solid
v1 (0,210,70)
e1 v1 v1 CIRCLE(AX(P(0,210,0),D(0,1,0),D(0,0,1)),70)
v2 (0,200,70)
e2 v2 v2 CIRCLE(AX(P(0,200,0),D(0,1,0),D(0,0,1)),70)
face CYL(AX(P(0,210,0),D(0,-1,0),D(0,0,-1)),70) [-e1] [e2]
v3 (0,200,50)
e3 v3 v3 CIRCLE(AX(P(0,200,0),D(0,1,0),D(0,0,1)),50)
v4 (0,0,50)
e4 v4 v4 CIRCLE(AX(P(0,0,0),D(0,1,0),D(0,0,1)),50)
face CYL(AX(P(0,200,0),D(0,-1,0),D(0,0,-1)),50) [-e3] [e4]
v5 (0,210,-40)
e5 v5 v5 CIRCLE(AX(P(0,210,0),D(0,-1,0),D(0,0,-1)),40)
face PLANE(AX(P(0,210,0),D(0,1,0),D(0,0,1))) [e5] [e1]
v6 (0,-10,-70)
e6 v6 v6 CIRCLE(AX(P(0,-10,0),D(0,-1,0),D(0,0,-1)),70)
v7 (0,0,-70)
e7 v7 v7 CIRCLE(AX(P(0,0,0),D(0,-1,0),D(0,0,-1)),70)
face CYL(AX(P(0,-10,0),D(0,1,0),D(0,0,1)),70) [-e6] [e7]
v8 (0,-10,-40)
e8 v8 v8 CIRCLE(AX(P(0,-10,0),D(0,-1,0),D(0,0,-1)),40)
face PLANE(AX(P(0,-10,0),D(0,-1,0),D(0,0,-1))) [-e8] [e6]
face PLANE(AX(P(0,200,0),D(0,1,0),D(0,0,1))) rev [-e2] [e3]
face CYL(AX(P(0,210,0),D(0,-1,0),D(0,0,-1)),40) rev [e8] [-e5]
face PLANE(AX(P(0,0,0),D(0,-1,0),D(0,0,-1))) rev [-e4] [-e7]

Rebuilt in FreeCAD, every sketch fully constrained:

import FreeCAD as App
import Part
import Sketcher

V = App.Vector

doc = App.newDocument("Part")
params = doc.addObject("Spreadsheet::Sheet", "Params")
for row, (alias, value) in enumerate([
    ("sketch1_diameter", "100 mm"),
    ("pad1_length", "200 mm"),
    ("sketch2_diameter", "140 mm"),
    ("pad2_length", "10 mm"),
    ("sketch3_diameter", "140 mm"),
    ("pad3_length", "10 mm"),
    ("sketch4_diameter", "80 mm"),
    ("pocket1_length", "220 mm"),
], start=1):
    params.set(f"A{row}", alias)
    params.set(f"B{row}", "=" + value)
    params.setAlias(f"B{row}", alias)

body = doc.addObject("PartDesign::Body", "Body")

# Sketch on XZ plane
sketch1 = doc.addObject("Sketcher::SketchObject", "Sketch")
body.addObject(sketch1)
sketch1.AttachmentSupport = (doc.XZ_Plane, [""])
sketch1.MapMode = "FlatFace"
sketch1.addGeometry(Part.Circle(V(0, 0, 0), V(0, 0, 1), 50), False)
sketch1.addConstraint([
    Sketcher.Constraint("Coincident", 0, 3, -1, 1),
    Sketcher.Constraint("Diameter", 0, 100.0),
])
sketch1.setExpression("Constraints[1]", "Params.sketch1_diameter")
pad1 = doc.addObject("PartDesign::Pad", "Pad")
body.addObject(pad1)
pad1.Profile = sketch1
pad1.setExpression("Length", "Params.pad1_length")
pad1.Reversed = True

# Sketch on XZ plane
sketch2 = doc.addObject("Sketcher::SketchObject", "Sketch001")
body.addObject(sketch2)
sketch2.AttachmentSupport = (doc.XZ_Plane, [""])
sketch2.MapMode = "FlatFace"
sketch2.AttachmentOffset = App.Placement(V(0, 0, -200), App.Rotation())
sketch2.addGeometry(Part.Circle(V(0, 0, 0), V(0, 0, 1), 70), False)
sketch2.addConstraint([
    Sketcher.Constraint("Coincident", 0, 3, -1, 1),
    Sketcher.Constraint("Diameter", 0, 140.0),
])
sketch2.setExpression("Constraints[1]", "Params.sketch2_diameter")
pad2 = doc.addObject("PartDesign::Pad", "Pad001")
body.addObject(pad2)
pad2.Profile = sketch2
pad2.setExpression("Length", "Params.pad2_length")
pad2.Reversed = True

# Sketch on XZ plane
sketch3 = doc.addObject("Sketcher::SketchObject", "Sketch002")
body.addObject(sketch3)
sketch3.AttachmentSupport = (doc.XZ_Plane, [""])
sketch3.MapMode = "FlatFace"
sketch3.AttachmentOffset = App.Placement(V(0, 0, 10), App.Rotation())
sketch3.addGeometry(Part.Circle(V(0, 0, 0), V(0, 0, 1), 70), False)
sketch3.addConstraint([
    Sketcher.Constraint("Coincident", 0, 3, -1, 1),
    Sketcher.Constraint("Diameter", 0, 140.0),
])
sketch3.setExpression("Constraints[1]", "Params.sketch3_diameter")
pad3 = doc.addObject("PartDesign::Pad", "Pad002")
body.addObject(pad3)
pad3.Profile = sketch3
pad3.setExpression("Length", "Params.pad3_length")
pad3.Reversed = True

# Sketch on XZ plane
sketch4 = doc.addObject("Sketcher::SketchObject", "Sketch003")
body.addObject(sketch4)
sketch4.AttachmentSupport = (doc.XZ_Plane, [""])
sketch4.MapMode = "FlatFace"
sketch4.AttachmentOffset = App.Placement(V(0, 0, 10), App.Rotation())
sketch4.addGeometry(Part.Circle(V(0, 0, 0), V(0, 0, 1), 40), False)
sketch4.addConstraint([
    Sketcher.Constraint("Coincident", 0, 3, -1, 1),
    Sketcher.Constraint("Diameter", 0, 80.0),
])
sketch4.setExpression("Constraints[1]", "Params.sketch4_diameter")
pocket1 = doc.addObject("PartDesign::Pocket", "Pocket")
body.addObject(pocket1)
pocket1.Profile = sketch4
pocket1.setExpression("Length", "Params.pocket1_length")

doc.recompute()
